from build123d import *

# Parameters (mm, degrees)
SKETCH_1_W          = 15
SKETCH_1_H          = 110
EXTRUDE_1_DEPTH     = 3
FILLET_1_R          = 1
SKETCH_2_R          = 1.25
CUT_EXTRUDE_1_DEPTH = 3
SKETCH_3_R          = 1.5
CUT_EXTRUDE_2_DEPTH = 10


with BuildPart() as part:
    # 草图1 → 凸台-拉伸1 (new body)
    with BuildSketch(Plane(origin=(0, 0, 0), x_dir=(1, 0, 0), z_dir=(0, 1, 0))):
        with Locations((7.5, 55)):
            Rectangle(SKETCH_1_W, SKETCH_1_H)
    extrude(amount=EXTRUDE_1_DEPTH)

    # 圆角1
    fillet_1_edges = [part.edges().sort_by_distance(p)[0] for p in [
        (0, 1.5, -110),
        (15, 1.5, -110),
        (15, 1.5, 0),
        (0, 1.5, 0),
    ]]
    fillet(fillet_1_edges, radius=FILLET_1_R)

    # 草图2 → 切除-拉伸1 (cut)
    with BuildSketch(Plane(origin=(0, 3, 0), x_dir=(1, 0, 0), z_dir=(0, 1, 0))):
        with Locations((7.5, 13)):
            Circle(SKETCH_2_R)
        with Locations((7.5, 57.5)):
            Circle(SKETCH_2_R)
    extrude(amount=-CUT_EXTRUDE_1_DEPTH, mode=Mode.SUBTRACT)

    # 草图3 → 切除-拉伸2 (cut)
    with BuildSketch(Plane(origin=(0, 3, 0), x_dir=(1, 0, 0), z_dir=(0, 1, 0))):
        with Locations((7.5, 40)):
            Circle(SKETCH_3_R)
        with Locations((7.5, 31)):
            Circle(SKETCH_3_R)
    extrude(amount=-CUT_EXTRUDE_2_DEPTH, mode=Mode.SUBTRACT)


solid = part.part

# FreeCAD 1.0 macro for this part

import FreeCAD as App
import Part
import Sketcher
Q = App.Units.Quantity


def edges_at(feature, points):
    """Names of the edges that pass closest to the given points."""
    edges = feature.Shape.Edges
    near = lambda p: min(range(len(edges)), key=lambda i: edges[i].distToShape(Part.Vertex(*p))[0])
    return sorted({f"Edge{near(p) + 1}" for p in points})

doc = App.newDocument("Part")
body = doc.addObject("PartDesign::Body", "Body")

sketch1 = body.newObject("Sketcher::SketchObject", "Sketch")
sketch1.AttachmentSupport = (doc.getObject("XZ_Plane"), [""])
sketch1.MapMode = "FlatFace"
sketch1.addGeometry(Part.LineSegment(App.Vector(0, -110, 0), App.Vector(0, 0, 0)), False)
sketch1.addGeometry(Part.LineSegment(App.Vector(0, 0, 0), App.Vector(15, 0, 0)), False)
sketch1.addGeometry(Part.LineSegment(App.Vector(15, 0, 0), App.Vector(15, -110, 0)), False)
sketch1.addGeometry(Part.LineSegment(App.Vector(15, -110, 0), App.Vector(0, -110, 0)), False)
sketch1.addConstraint(Sketcher.Constraint("Coincident", 0, 2, 1, 1))
sketch1.addConstraint(Sketcher.Constraint("Coincident", 1, 2, 2, 1))
sketch1.addConstraint(Sketcher.Constraint("Coincident", 2, 2, 3, 1))
sketch1.addConstraint(Sketcher.Constraint("Coincident", 3, 2, 0, 1))
sketch1.addConstraint(Sketcher.Constraint("Vertical", 0))
sketch1.addConstraint(Sketcher.Constraint("Horizontal", 1))
sketch1.addConstraint(Sketcher.Constraint("Vertical", 2))
sketch1.addConstraint(Sketcher.Constraint("Horizontal", 3))
sketch1.addConstraint(Sketcher.Constraint("Coincident", 0, 2, -1, 1))
sketch1.addConstraint(Sketcher.Constraint("DistanceX", 1, 1, 1, 2, Q("15 mm")))
sketch1.addConstraint(Sketcher.Constraint("DistanceY", 0, 1, 0, 2, Q("110 mm")))
pad1 = body.newObject("PartDesign::Pad", "Pad")
pad1.Profile = sketch1
pad1.Length = 3
pad1.Reversed = True
doc.recompute()

fillet = body.newObject("PartDesign::Fillet", "Fillet")
fillet.Base = (pad1, edges_at(pad1, [
    (0, 1.5, -110),
    (15, 1.5, -110),
    (15, 1.5, 0),
    (0, 1.5, 0),
]))
fillet.Radius = 1

sketch2 = body.newObject("Sketcher::SketchObject", "Sketch001")
sketch2.AttachmentSupport = (doc.getObject("XZ_Plane"), [""])
sketch2.MapMode = "FlatFace"
sketch2.AttachmentOffset = App.Placement(App.Vector(0, 0, -3), App.Rotation())
sketch2.addGeometry(Part.Circle(App.Vector(7.5, -13, 0), App.Vector(0, 0, 1), 1.2), False)
sketch2.addGeometry(Part.Circle(App.Vector(7.5, -57.5, 0), App.Vector(0, 0, 1), 1.2), False)
sketch2.addConstraint(Sketcher.Constraint("Equal", 0, 1))
sketch2.addConstraint(Sketcher.Constraint("Vertical", 0, 3, 1, 3))
sketch2.addConstraint(Sketcher.Constraint("Diameter", 0, Q("2.5 mm")))
sketch2.addConstraint(Sketcher.Constraint("DistanceY", 0, 3, -1, 1, Q("13 mm")))
sketch2.addConstraint(Sketcher.Constraint("DistanceX", -1, 1, 0, 3, Q("7.5 mm")))
sketch2.addConstraint(Sketcher.Constraint("DistanceY", 1, 3, -1, 1, Q("57.5 mm")))
pocket1 = body.newObject("PartDesign::Pocket", "Pocket")
pocket1.Profile = sketch2
pocket1.Length = 3
pocket1.Reversed = True

sketch3 = body.newObject("Sketcher::SketchObject", "Sketch002")
sketch3.AttachmentSupport = (doc.getObject("XZ_Plane"), [""])
sketch3.MapMode = "FlatFace"
sketch3.AttachmentOffset = App.Placement(App.Vector(0, 0, -3), App.Rotation())
sketch3.addGeometry(Part.Circle(App.Vector(7.5, -40, 0), App.Vector(0, 0, 1), 1.5), False)
sketch3.addGeometry(Part.Circle(App.Vector(7.5, -31, 0), App.Vector(0, 0, 1), 1.5), False)
sketch3.addConstraint(Sketcher.Constraint("Equal", 0, 1))
sketch3.addConstraint(Sketcher.Constraint("Vertical", 0, 3, 1, 3))
sketch3.addConstraint(Sketcher.Constraint("Diameter", 0, Q("3 mm")))
sketch3.addConstraint(Sketcher.Constraint("DistanceY", 0, 3, -1, 1, Q("40 mm")))
sketch3.addConstraint(Sketcher.Constraint("DistanceY", 1, 3, -1, 1, Q("31 mm")))
sketch3.addConstraint(Sketcher.Constraint("DistanceX", -1, 1, 0, 3, Q("7.5 mm")))
pocket2 = body.newObject("PartDesign::Pocket", "Pocket001")
pocket2.Profile = sketch3
pocket2.Length = 10
pocket2.Reversed = True

doc.recompute()
